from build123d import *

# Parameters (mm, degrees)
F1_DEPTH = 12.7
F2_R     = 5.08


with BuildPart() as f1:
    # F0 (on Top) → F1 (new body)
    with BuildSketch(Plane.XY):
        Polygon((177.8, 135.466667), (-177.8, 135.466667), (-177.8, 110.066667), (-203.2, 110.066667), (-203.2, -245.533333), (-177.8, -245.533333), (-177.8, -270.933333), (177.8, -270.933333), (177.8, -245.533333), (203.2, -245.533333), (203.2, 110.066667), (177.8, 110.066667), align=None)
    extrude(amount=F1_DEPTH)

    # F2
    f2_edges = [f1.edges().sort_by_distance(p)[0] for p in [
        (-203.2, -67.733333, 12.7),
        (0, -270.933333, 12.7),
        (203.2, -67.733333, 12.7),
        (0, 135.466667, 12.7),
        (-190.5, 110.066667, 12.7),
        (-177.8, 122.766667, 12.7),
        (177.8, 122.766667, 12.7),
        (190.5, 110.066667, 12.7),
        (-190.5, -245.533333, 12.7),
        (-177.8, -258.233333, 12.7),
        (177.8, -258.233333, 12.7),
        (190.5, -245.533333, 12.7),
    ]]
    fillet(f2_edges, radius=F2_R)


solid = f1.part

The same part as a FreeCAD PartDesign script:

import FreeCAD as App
import Part
import Sketcher

V = App.Vector
Q = App.Units.Quantity


def edges_at(feature, points):
    """Names of the edges that pass closest to the given points."""
    edges = feature.Shape.Edges
    near = lambda p: min(range(len(edges)), key=lambda i: edges[i].distToShape(Part.Vertex(*p))[0])
    return sorted({f"Edge{near(p) + 1}" for p in points})

doc = App.newDocument("Part")
params = doc.addObject("Spreadsheet::Sheet", "Params")
for row, (alias, value) in enumerate([
    ("sketch1_width", "14 in"),
    ("sketch1_width2", "1 in"),
    ("pad1_length", "0.5 in"),
    ("fillet_radius", "0.2 in"),
], start=1):
    params.set(f"A{row}", alias)
    params.set(f"B{row}", "=" + value)
    params.setAlias(f"B{row}", alias)

body = doc.addObject("PartDesign::Body", "Body")

# Sketch on XY plane
sketch1 = body.newObject("Sketcher::SketchObject", "Sketch")
sketch1.AttachmentSupport = (doc.getObject("XY_Plane"), [""])
sketch1.MapMode = "FlatFace"
sketch1.addGeometry([
    Part.LineSegment(V(177.8, 135.466667, 0), V(-177.8, 135.466667, 0)),  # 0
    Part.LineSegment(V(-177.8, 135.466667, 0), V(-177.8, 110.066667, 0)),  # 1
    Part.LineSegment(V(-177.8, 110.066667, 0), V(-203.2, 110.066667, 0)),  # 2
    Part.LineSegment(V(-203.2, 110.066667, 0), V(-203.2, -245.533333, 0)),  # 3
    Part.LineSegment(V(-203.2, -245.533333, 0), V(-177.8, -245.533333, 0)),  # 4
    Part.LineSegment(V(-177.8, -245.533333, 0), V(-177.8, -270.933333, 0)),  # 5
    Part.LineSegment(V(-177.8, -270.933333, 0), V(177.8, -270.933333, 0)),  # 6
    Part.LineSegment(V(177.8, -270.933333, 0), V(177.8, -245.533333, 0)),  # 7
    Part.LineSegment(V(177.8, -245.533333, 0), V(203.2, -245.533333, 0)),  # 8
    Part.LineSegment(V(203.2, -245.533333, 0), V(203.2, 110.066667, 0)),  # 9
    Part.LineSegment(V(203.2, 110.066667, 0), V(177.8, 110.066667, 0)),  # 10
    Part.LineSegment(V(177.8, 110.066667, 0), V(177.8, 135.466667, 0)),  # 11
], False)
sketch1.addConstraint([
    Sketcher.Constraint("Coincident", 0, 2, 1, 1),
    Sketcher.Constraint("Coincident", 1, 2, 2, 1),
    Sketcher.Constraint("Coincident", 2, 2, 3, 1),
    Sketcher.Constraint("Coincident", 3, 2, 4, 1),
    Sketcher.Constraint("Coincident", 4, 2, 5, 1),
    Sketcher.Constraint("Coincident", 5, 2, 6, 1),
    Sketcher.Constraint("Coincident", 6, 2, 7, 1),
    Sketcher.Constraint("Coincident", 7, 2, 8, 1),
    Sketcher.Constraint("Coincident", 8, 2, 9, 1),
    Sketcher.Constraint("Coincident", 9, 2, 10, 1),
    Sketcher.Constraint("Coincident", 10, 2, 11, 1),
    Sketcher.Constraint("Coincident", 11, 2, 0, 1),
    Sketcher.Constraint("Horizontal", 0),
    Sketcher.Constraint("Vertical", 1),
    Sketcher.Constraint("Horizontal", 2),
    Sketcher.Constraint("Vertical", 3),
    Sketcher.Constraint("Horizontal", 4),
    Sketcher.Constraint("Vertical", 5),
    Sketcher.Constraint("Horizontal", 6),
    Sketcher.Constraint("Vertical", 7),
    Sketcher.Constraint("Horizontal", 8),
    Sketcher.Constraint("Vertical", 9),
    Sketcher.Constraint("Horizontal", 10),
    Sketcher.Constraint("Vertical", 11),
    Sketcher.Constraint("Symmetric", 4, 2, 7, 2, -2),
    Sketcher.Constraint("Symmetric", 2, 2, 9, 2, -2),
    Sketcher.Constraint("Vertical", 1, 2, 4, 2),
    Sketcher.Constraint("Vertical", 7, 2, 10, 2),
    Sketcher.Constraint("Equal", 10, 1),
    Sketcher.Constraint("Equal", 6, 3),
    Sketcher.Constraint("Equal", 1, 5),
    Sketcher.Constraint("DistanceX", 0, 2, 0, 1, Q("14 in")),
    Sketcher.Constraint("DistanceX", 2, 2, 2, 1, Q("1 in")),
    Sketcher.Constraint("DistanceY", -1, 1, 0, 2, Q("135.466667 mm")),
])
sketch1.setExpression("Constraints[31]", "Params.sketch1_width")
sketch1.setExpression("Constraints[32]", "Params.sketch1_width2")
pad1 = body.newObject("PartDesign::Pad", "Pad")
pad1.Profile = sketch1
pad1.setExpression("Length", "Params.pad1_length")
doc.recompute()

fillet = body.newObject("PartDesign::Fillet", "Fillet")
fillet.Base = (pad1, edges_at(pad1, [
    (-203.2, -67.733, 12.7),
    (0, -270.933, 12.7),
    (203.2, -67.733, 12.7),
    (0, 135.467, 12.7),
    (-190.5, 110.067, 12.7),
    (-177.8, 122.767, 12.7),
    (177.8, 122.767, 12.7),
    (190.5, 110.067, 12.7),
    (-190.5, -245.533, 12.7),
    (-177.8, -258.233, 12.7),
    (177.8, -258.233, 12.7),
    (190.5, -245.533, 12.7),
]))
fillet.setExpression("Radius", "Params.fillet_radius")

doc.recompute()
